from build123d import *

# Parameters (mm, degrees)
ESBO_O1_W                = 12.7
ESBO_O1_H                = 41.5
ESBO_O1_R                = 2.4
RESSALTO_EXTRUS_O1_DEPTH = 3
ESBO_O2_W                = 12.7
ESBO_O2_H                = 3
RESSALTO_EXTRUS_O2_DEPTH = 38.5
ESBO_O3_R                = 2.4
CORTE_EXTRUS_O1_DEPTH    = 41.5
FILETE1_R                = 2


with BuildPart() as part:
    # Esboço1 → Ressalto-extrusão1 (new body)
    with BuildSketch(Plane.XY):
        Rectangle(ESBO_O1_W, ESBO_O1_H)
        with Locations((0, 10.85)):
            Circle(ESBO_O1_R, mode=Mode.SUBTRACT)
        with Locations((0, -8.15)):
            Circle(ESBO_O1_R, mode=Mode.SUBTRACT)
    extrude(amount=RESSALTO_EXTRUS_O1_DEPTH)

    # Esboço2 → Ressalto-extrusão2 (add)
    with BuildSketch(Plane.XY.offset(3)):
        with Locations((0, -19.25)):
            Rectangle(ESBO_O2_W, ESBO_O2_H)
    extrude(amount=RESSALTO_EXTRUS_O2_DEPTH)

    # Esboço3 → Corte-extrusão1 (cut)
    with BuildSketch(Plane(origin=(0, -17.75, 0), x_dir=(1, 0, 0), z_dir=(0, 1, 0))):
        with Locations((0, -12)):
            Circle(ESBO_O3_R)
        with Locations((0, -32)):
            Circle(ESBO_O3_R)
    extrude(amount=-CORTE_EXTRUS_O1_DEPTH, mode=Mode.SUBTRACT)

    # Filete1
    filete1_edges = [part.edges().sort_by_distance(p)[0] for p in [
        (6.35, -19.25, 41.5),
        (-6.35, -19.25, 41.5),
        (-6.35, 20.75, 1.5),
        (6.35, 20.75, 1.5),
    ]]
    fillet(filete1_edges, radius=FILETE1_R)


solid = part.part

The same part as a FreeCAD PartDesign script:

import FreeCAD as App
import Part
import Sketcher
Q = App.Units.Quantity


def edges_at(feature, points):
    """Names of the edges that pass closest to the given points."""
    edges = feature.Shape.Edges
    near = lambda p: min(range(len(edges)), key=lambda i: edges[i].distToShape(Part.Vertex(*p))[0])
    return sorted({f"Edge{near(p) + 1}" for p in points})

doc = App.newDocument("Part")
body = doc.addObject("PartDesign::Body", "Body")

sketch1 = body.newObject("Sketcher::SketchObject", "Sketch")
sketch1.AttachmentSupport = (doc.getObject("XY_Plane"), [""])
sketch1.MapMode = "FlatFace"
sketch1.addGeometry(Part.LineSegment(App.Vector(-6.35, 20.75, 0), App.Vector(-6.35, -20.75, 0)), False)
sketch1.addGeometry(Part.LineSegment(App.Vector(-6.35, -20.75, 0), App.Vector(6.35, -20.75, 0)), False)
sketch1.addGeometry(Part.LineSegment(App.Vector(6.35, -20.75, 0), App.Vector(6.35, 20.75, 0)), False)
sketch1.addGeometry(Part.LineSegment(App.Vector(6.35, 20.75, 0), App.Vector(-6.35, 20.75, 0)), False)
sketch1.addGeometry(Part.Circle(App.Vector(0, -8.15, 0), App.Vector(0, 0, 1), 2.4), False)
sketch1.addGeometry(Part.Circle(App.Vector(0, 10.85, 0), App.Vector(0, 0, 1), 2.4), False)
sketch1.addConstraint(Sketcher.Constraint("Coincident", 0, 2, 1, 1))
sketch1.addConstraint(Sketcher.Constraint("Coincident", 1, 2, 2, 1))
sketch1.addConstraint(Sketcher.Constraint("Coincident", 2, 2, 3, 1))
sketch1.addConstraint(Sketcher.Constraint("Coincident", 3, 2, 0, 1))
sketch1.addConstraint(Sketcher.Constraint("Vertical", 0))
sketch1.addConstraint(Sketcher.Constraint("Horizontal", 1))
sketch1.addConstraint(Sketcher.Constraint("Vertical", 2))
sketch1.addConstraint(Sketcher.Constraint("Horizontal", 3))
sketch1.addConstraint(Sketcher.Constraint("Equal", 4, 5))
sketch1.addConstraint(Sketcher.Constraint("Symmetric", 0, 2, 2, 2, -1, 1))
sketch1.addConstraint(Sketcher.Constraint("PointOnObject", 4, 3, -2))
sketch1.addConstraint(Sketcher.Constraint("PointOnObject", 5, 3, -2))
sketch1.addConstraint(Sketcher.Constraint("Diameter", 4, Q("4.8 mm")))
sketch1.addConstraint(Sketcher.Constraint("DistanceX", 1, 1, 1, 2, Q("12.7 mm")))
sketch1.addConstraint(Sketcher.Constraint("DistanceY", 0, 2, 0, 1, Q("41.5 mm")))
sketch1.addConstraint(Sketcher.Constraint("DistanceY", 4, 3, 5, 3, Q("19 mm")))
sketch1.addConstraint(Sketcher.Constraint("DistanceY", 0, 2, 4, 3, Q("12.6 mm")))
pad1 = body.newObject("PartDesign::Pad", "Pad")
pad1.Profile = sketch1
pad1.Length = 3

sketch2 = body.newObject("Sketcher::SketchObject", "Sketch001")
sketch2.AttachmentSupport = (doc.getObject("XY_Plane"), [""])
sketch2.MapMode = "FlatFace"
sketch2.AttachmentOffset = App.Placement(App.Vector(0, 0, 3), App.Rotation())
sketch2.addGeometry(Part.LineSegment(App.Vector(-6.35, -17.75, 0), App.Vector(-6.35, -20.75, 0)), False)
sketch2.addGeometry(Part.LineSegment(App.Vector(-6.35, -20.75, 0), App.Vector(6.35, -20.75, 0)), False)
sketch2.addGeometry(Part.LineSegment(App.Vector(6.35, -20.75, 0), App.Vector(6.35, -17.75, 0)), False)
sketch2.addGeometry(Part.LineSegment(App.Vector(6.35, -17.75, 0), App.Vector(-6.35, -17.75, 0)), False)
sketch2.addConstraint(Sketcher.Constraint("Coincident", 0, 2, 1, 1))
sketch2.addConstraint(Sketcher.Constraint("Coincident", 1, 2, 2, 1))
sketch2.addConstraint(Sketcher.Constraint("Coincident", 2, 2, 3, 1))
sketch2.addConstraint(Sketcher.Constraint("Coincident", 3, 2, 0, 1))
sketch2.addConstraint(Sketcher.Constraint("Vertical", 0))
sketch2.addConstraint(Sketcher.Constraint("Horizontal", 1))
sketch2.addConstraint(Sketcher.Constraint("Vertical", 2))
sketch2.addConstraint(Sketcher.Constraint("Horizontal", 3))
sketch2.addConstraint(Sketcher.Constraint("DistanceY", 0, 2, 0, 1, Q("3 mm")))
sketch2.addConstraint(Sketcher.Constraint("DistanceX", 1, 1, 1, 2, Q("12.7 mm")))
sketch2.addConstraint(Sketcher.Constraint("DistanceX", 0, 2, -1, 1, Q("6.35 mm")))
sketch2.addConstraint(Sketcher.Constraint("DistanceY", 0, 2, -1, 1, Q("20.75 mm")))
pad2 = body.newObject("PartDesign::Pad", "Pad001")
pad2.Profile = sketch2
pad2.Length = 38.5

sketch3 = body.newObject("Sketcher::SketchObject", "Sketch002")
sketch3.AttachmentSupport = (doc.getObject("XZ_Plane"), [""])
sketch3.MapMode = "FlatFace"
sketch3.AttachmentOffset = App.Placement(App.Vector(0, 0, 17.75), App.Rotation())
sketch3.addGeometry(Part.Circle(App.Vector(0, 12, 0), App.Vector(0, 0, 1), 2.4), False)
sketch3.addGeometry(Part.Circle(App.Vector(0, 32, 0), App.Vector(0, 0, 1), 2.4), False)
sketch3.addConstraint(Sketcher.Constraint("Equal", 0, 1))
sketch3.addConstraint(Sketcher.Constraint("PointOnObject", 0, 3, -2))
sketch3.addConstraint(Sketcher.Constraint("PointOnObject", 1, 3, -2))
sketch3.addConstraint(Sketcher.Constraint("Diameter", 0, Q("4.8 mm")))
sketch3.addConstraint(Sketcher.Constraint("DistanceY", -1, 1, 0, 3, Q("12 mm")))
sketch3.addConstraint(Sketcher.Constraint("DistanceY", -1, 1, 1, 3, Q("32 mm")))
pocket1 = body.newObject("PartDesign::Pocket", "Pocket")
pocket1.Profile = sketch3
pocket1.Length = 41.5
pocket1.Reversed = True
doc.recompute()

fillet = body.newObject("PartDesign::Fillet", "Fillet")
fillet.Base = (pocket1, edges_at(pocket1, [
    (6.35, -19.25, 41.5),
    (-6.35, -19.25, 41.5),
    (-6.35, 20.75, 1.5),
    (6.35, 20.75, 1.5),
]))
fillet.Radius = 2

doc.recompute()
